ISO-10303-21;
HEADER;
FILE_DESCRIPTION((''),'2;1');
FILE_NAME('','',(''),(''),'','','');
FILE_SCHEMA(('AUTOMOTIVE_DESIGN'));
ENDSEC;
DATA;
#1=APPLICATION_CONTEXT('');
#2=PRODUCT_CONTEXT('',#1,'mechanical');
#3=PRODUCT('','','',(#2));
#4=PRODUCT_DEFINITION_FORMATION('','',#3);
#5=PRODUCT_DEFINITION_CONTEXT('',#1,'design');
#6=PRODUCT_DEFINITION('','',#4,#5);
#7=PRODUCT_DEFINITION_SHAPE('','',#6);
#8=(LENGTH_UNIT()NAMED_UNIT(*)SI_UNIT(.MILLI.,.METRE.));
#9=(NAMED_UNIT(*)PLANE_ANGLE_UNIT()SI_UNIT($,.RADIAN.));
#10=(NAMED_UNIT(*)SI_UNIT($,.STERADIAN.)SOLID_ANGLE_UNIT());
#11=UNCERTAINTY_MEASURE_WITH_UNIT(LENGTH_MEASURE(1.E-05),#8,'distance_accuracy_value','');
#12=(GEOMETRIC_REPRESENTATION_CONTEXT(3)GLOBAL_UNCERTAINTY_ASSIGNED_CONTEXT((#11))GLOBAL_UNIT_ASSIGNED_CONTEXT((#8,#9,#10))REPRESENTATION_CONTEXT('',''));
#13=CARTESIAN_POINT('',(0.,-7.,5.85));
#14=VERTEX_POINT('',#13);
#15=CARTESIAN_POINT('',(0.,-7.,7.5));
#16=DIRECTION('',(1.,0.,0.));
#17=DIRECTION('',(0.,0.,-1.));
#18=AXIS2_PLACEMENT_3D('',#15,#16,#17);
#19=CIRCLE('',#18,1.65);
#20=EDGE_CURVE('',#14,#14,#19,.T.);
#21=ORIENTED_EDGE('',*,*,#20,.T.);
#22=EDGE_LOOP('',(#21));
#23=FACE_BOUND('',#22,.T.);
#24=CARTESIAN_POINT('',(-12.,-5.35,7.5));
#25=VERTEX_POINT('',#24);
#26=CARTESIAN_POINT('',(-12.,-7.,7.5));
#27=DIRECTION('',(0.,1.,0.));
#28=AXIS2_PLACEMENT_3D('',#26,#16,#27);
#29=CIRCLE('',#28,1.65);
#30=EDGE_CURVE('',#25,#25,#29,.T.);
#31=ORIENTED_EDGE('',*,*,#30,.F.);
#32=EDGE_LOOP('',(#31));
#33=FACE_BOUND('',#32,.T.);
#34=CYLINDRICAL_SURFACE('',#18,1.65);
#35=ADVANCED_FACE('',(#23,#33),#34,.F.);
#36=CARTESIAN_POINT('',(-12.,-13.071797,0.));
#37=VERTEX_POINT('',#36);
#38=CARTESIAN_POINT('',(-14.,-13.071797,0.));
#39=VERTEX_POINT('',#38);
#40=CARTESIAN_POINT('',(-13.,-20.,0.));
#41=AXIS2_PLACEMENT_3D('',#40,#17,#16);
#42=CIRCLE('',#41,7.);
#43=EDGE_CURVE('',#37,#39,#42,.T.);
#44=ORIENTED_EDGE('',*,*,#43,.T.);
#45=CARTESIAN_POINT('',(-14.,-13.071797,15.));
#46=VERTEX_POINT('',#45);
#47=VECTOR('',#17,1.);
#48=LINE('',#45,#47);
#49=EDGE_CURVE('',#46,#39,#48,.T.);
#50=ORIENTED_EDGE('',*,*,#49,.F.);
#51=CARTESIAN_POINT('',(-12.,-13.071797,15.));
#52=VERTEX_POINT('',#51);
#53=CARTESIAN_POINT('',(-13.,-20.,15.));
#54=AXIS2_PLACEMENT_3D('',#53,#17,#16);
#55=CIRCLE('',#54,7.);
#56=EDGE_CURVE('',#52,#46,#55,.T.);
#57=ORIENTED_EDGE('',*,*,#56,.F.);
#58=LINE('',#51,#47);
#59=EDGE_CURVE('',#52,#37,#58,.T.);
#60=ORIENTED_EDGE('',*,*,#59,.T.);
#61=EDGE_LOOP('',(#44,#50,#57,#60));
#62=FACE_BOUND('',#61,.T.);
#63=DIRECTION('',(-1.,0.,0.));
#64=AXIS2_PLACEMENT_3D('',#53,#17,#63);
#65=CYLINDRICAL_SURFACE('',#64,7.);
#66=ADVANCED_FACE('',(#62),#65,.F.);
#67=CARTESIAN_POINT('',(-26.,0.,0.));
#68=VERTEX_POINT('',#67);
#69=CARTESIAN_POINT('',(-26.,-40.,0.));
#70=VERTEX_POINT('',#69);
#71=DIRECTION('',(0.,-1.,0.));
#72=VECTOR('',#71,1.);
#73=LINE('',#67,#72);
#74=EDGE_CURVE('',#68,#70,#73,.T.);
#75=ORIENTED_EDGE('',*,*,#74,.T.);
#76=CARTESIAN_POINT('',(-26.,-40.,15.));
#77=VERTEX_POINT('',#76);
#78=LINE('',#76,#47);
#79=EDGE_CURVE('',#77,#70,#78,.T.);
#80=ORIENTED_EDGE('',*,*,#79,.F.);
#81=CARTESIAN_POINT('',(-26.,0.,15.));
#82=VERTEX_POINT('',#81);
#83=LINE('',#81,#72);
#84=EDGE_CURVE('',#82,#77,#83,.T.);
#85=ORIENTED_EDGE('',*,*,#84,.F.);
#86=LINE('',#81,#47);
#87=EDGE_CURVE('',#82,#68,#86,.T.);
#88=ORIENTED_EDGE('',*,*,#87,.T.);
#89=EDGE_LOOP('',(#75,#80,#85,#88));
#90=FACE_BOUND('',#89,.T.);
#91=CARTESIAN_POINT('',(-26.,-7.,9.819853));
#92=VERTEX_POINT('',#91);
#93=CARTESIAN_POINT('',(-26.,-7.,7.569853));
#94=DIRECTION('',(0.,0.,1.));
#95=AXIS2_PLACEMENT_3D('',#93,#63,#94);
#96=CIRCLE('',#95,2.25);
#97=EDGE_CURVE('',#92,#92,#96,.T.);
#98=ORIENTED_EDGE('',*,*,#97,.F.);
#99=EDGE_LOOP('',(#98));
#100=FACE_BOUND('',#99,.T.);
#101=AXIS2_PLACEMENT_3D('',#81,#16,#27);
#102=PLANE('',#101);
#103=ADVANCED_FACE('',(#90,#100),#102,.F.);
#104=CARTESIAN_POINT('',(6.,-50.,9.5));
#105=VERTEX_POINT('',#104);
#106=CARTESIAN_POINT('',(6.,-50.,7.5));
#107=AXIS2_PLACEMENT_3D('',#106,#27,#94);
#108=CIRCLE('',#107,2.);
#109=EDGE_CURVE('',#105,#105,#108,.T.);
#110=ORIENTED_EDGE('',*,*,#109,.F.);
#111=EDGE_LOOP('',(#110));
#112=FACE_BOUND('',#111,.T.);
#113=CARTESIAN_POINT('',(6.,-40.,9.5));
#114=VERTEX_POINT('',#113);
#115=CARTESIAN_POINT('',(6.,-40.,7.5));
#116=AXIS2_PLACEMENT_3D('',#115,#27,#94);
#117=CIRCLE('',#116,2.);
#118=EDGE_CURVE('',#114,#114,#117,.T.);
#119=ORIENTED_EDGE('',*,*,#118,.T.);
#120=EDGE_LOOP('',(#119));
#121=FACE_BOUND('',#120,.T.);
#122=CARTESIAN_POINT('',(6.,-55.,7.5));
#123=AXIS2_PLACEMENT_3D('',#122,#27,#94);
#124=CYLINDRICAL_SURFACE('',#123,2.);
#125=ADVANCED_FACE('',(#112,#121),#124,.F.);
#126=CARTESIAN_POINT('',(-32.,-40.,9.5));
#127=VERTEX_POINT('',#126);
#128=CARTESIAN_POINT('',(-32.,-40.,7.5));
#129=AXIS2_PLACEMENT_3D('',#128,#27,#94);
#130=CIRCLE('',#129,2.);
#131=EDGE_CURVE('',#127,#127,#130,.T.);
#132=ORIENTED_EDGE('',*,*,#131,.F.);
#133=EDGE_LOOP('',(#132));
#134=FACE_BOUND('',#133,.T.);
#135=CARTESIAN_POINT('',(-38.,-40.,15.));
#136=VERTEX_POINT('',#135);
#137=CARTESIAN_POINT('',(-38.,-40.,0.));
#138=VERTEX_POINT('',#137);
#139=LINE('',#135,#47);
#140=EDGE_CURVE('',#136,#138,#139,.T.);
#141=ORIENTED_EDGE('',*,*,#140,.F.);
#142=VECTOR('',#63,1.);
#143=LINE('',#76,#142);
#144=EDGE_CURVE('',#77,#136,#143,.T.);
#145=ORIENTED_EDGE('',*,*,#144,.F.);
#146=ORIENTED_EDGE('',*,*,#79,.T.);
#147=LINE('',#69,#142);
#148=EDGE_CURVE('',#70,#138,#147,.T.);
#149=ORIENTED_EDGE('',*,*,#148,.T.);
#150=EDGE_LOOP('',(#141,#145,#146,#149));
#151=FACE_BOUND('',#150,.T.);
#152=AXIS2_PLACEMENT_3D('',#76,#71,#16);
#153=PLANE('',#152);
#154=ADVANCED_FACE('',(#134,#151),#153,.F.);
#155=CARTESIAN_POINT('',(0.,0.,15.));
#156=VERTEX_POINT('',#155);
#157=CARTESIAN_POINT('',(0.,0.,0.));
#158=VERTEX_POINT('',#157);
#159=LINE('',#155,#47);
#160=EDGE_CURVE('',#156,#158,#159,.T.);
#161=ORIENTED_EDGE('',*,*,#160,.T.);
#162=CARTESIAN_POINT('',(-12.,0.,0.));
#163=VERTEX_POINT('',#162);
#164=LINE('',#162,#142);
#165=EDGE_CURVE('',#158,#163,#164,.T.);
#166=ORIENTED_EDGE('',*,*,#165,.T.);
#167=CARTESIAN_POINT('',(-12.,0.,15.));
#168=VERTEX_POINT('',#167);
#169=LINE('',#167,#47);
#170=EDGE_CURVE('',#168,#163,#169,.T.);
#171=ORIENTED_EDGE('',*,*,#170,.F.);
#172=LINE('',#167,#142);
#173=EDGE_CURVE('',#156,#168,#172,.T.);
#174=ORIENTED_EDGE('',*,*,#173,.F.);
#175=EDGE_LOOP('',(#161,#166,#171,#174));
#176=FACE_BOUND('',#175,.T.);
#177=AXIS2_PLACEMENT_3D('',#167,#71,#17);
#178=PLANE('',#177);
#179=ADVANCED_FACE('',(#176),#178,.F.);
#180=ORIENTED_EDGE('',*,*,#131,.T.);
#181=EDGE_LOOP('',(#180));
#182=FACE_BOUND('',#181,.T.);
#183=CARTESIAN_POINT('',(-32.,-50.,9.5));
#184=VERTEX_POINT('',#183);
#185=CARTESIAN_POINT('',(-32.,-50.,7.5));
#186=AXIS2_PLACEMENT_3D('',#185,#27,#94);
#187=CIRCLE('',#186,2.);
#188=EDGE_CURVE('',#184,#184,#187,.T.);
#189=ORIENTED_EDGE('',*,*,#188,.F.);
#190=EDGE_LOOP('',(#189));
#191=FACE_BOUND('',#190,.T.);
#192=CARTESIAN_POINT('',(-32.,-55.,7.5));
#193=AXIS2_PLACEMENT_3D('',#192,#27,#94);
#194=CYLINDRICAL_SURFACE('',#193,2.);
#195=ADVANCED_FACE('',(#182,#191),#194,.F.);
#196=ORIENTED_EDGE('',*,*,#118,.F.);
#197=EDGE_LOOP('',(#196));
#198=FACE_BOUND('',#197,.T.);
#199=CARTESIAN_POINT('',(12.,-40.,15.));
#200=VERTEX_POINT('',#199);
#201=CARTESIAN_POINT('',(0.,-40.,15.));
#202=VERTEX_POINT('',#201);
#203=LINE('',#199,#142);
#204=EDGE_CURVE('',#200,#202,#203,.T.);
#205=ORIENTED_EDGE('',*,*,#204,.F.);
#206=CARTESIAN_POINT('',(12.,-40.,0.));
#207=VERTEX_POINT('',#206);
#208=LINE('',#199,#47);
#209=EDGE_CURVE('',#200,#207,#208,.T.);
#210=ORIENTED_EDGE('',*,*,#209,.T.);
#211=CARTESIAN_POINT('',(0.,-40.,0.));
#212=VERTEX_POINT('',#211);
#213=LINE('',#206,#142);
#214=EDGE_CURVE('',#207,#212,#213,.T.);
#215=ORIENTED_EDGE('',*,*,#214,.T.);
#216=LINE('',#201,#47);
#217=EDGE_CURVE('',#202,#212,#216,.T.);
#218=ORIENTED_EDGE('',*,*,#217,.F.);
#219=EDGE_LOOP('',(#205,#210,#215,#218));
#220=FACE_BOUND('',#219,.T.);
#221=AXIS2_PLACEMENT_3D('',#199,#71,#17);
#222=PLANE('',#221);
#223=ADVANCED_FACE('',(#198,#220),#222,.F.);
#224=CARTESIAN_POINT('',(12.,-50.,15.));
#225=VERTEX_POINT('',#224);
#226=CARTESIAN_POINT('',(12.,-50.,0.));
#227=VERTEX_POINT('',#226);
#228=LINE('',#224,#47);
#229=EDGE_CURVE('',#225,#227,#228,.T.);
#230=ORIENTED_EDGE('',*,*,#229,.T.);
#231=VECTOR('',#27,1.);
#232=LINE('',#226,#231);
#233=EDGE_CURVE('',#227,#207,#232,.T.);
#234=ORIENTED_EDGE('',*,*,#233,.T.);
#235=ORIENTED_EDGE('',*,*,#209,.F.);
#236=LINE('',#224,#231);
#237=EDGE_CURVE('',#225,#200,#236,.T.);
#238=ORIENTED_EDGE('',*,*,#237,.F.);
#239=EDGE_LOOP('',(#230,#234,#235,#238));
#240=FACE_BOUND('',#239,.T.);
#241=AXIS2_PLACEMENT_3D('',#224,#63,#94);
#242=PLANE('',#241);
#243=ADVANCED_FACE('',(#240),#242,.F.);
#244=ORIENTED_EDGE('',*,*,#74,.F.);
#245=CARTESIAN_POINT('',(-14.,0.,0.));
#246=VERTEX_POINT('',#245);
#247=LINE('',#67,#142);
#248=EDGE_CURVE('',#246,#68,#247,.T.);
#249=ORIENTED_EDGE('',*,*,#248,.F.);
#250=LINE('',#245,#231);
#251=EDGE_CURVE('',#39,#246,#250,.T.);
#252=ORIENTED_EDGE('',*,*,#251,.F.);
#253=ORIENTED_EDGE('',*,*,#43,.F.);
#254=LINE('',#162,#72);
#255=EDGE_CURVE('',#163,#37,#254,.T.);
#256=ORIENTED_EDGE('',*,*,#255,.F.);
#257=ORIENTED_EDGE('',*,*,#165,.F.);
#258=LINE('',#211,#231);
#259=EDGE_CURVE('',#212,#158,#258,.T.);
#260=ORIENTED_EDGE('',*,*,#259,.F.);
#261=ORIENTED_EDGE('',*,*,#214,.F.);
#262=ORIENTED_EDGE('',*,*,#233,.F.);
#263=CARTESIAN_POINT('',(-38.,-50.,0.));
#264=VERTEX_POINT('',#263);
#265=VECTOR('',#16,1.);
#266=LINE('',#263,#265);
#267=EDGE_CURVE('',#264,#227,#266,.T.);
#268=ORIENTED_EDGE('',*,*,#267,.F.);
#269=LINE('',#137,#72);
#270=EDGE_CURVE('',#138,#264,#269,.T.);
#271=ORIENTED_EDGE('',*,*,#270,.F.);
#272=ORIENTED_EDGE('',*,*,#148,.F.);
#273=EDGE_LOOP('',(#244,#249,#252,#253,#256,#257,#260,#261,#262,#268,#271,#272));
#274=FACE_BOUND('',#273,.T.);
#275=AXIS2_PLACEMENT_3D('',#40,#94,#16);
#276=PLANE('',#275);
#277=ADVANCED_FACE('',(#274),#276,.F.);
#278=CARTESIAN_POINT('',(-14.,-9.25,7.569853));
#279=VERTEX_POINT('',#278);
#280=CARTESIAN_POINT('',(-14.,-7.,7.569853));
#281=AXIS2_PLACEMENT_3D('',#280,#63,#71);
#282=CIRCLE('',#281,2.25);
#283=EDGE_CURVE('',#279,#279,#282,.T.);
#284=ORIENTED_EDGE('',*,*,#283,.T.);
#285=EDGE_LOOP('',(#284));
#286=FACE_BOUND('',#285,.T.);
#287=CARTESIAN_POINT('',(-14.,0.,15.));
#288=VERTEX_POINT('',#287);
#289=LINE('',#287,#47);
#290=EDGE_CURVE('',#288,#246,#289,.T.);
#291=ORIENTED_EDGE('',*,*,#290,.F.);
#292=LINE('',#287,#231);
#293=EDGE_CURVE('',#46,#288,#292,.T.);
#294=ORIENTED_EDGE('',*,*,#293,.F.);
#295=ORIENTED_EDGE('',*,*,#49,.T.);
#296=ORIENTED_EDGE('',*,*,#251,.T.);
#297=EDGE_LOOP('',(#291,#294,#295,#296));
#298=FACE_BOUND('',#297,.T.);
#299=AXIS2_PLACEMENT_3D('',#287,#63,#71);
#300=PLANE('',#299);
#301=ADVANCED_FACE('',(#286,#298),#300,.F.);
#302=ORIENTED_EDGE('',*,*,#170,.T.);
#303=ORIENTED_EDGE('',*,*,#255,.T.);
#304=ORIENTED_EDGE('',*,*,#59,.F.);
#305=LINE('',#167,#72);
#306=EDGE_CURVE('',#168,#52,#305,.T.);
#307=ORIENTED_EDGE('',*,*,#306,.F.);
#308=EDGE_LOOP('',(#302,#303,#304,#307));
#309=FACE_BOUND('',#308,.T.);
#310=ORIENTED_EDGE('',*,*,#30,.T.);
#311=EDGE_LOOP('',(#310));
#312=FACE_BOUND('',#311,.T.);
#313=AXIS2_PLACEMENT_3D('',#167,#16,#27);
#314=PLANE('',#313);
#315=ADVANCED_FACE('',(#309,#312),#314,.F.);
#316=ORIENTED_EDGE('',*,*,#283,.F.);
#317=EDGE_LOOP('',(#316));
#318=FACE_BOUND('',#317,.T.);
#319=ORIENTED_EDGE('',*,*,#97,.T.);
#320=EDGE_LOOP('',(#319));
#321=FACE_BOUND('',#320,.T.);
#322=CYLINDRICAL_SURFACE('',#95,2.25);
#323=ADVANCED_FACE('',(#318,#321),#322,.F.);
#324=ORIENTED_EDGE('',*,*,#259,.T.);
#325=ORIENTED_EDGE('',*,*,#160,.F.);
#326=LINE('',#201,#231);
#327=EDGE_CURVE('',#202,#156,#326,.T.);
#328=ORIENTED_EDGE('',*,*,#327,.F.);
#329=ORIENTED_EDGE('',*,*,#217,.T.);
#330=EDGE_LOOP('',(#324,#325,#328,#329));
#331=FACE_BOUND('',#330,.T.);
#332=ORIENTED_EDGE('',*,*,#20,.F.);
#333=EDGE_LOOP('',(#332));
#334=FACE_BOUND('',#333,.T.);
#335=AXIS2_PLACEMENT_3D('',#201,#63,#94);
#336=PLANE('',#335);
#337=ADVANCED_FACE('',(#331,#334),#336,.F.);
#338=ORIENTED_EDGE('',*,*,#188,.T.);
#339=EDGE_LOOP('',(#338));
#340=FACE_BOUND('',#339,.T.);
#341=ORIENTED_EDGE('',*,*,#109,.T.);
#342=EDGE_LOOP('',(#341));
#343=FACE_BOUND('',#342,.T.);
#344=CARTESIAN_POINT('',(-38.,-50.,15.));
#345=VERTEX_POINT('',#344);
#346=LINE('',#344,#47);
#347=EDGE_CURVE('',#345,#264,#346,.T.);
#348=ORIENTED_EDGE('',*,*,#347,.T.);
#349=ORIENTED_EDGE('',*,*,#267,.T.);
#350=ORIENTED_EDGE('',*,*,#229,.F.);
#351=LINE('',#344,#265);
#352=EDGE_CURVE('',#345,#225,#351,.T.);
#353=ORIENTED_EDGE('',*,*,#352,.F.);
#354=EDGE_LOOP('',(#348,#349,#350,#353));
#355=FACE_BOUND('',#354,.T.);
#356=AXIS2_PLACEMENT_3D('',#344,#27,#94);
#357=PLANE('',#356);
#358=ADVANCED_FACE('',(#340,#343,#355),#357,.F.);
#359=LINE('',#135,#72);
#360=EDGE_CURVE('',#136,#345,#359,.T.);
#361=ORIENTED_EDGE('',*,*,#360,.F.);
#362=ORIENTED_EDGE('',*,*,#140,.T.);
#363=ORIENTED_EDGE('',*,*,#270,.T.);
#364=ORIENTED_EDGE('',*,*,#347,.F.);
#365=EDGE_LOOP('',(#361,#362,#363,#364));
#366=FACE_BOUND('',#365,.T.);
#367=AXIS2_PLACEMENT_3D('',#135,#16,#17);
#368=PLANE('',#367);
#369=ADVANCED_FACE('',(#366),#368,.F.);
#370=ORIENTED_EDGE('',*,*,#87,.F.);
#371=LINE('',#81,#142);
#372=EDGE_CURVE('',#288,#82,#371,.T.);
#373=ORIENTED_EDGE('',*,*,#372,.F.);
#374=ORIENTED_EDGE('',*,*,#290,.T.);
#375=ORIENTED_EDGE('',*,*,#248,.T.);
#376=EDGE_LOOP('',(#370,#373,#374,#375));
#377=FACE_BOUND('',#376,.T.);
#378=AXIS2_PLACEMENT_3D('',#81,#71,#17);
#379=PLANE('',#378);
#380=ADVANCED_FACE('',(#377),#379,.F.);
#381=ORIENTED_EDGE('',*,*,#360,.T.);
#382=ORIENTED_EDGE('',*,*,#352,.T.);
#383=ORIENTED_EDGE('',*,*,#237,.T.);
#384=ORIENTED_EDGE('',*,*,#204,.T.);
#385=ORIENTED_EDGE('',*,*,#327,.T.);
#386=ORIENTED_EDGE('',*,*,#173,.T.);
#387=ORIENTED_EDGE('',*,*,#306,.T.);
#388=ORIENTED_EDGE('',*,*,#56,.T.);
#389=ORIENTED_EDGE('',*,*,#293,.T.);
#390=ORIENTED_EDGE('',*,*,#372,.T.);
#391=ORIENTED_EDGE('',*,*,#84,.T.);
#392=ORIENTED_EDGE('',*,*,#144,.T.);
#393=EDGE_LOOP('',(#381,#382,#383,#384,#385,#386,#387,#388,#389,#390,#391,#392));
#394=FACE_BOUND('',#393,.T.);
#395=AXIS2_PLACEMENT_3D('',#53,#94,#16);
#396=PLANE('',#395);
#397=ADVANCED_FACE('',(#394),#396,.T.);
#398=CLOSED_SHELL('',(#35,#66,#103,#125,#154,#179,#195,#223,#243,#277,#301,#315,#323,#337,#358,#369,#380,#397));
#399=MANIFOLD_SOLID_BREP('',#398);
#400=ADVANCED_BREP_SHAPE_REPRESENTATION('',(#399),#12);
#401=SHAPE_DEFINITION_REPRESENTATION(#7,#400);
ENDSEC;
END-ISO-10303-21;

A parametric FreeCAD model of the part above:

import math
import FreeCAD as App
import Part
import Sketcher

doc = App.newDocument("Part")
body = doc.addObject("PartDesign::Body", "Body")

# Sketch on XY plane
sketch1 = body.newObject("Sketcher::SketchObject", "Sketch")
sketch1.AttachmentSupport = (doc.getObject("XY_Plane"), [""])
sketch1.MapMode = "FlatFace"
sketch1.addGeometry([
    Part.LineSegment(App.Vector(-26, 0, 0), App.Vector(-26, -40, 0)),  # 0
    Part.LineSegment(App.Vector(-26, -40, 0), App.Vector(-38, -40, 0)),  # 1
    Part.LineSegment(App.Vector(-38, -40, 0), App.Vector(-38, -50, 0)),  # 2
    Part.LineSegment(App.Vector(-38, -50, 0), App.Vector(12, -50, 0)),  # 3
    Part.LineSegment(App.Vector(12, -50, 0), App.Vector(12, -40, 0)),  # 4
    Part.LineSegment(App.Vector(12, -40, 0), App.Vector(0, -40, 0)),  # 5
    Part.LineSegment(App.Vector(0, -40, 0), App.Vector(0, 0, 0)),  # 6
    Part.LineSegment(App.Vector(0, 0, 0), App.Vector(-12, 0, 0)),  # 7
    Part.LineSegment(App.Vector(-12, 0, 0), App.Vector(-12, -13.1, 0)),  # 8
    Part.ArcOfCircle(Part.Circle(App.Vector(-13, -20, 0), App.Vector(0, 0, 1), 7), math.radians(98), math.radians(442)),  # 9
    Part.LineSegment(App.Vector(-14, -13.1, 0), App.Vector(-14, 0, 0)),  # 10
    Part.LineSegment(App.Vector(-14, 0, 0), App.Vector(-26, 0, 0)),  # 11
], False)
sketch1.addConstraint([
    Sketcher.Constraint("Coincident", 0, 2, 1, 1),
    Sketcher.Constraint("Coincident", 1, 2, 2, 1),
    Sketcher.Constraint("Coincident", 2, 2, 3, 1),
    Sketcher.Constraint("Coincident", 3, 2, 4, 1),
    Sketcher.Constraint("Coincident", 4, 2, 5, 1),
    Sketcher.Constraint("Coincident", 5, 2, 6, 1),
    Sketcher.Constraint("Coincident", 6, 2, 7, 1),
    Sketcher.Constraint("Coincident", 7, 2, 8, 1),
    Sketcher.Constraint("Coincident", 8, 2, 9, 2),
    Sketcher.Constraint("Coincident", 9, 1, 10, 1),
    Sketcher.Constraint("Coincident", 10, 2, 11, 1),
    Sketcher.Constraint("Coincident", 11, 2, 0, 1),
    Sketcher.Constraint("Vertical", 0),
    Sketcher.Constraint("Horizontal", 1),
    Sketcher.Constraint("Vertical", 2),
    Sketcher.Constraint("Horizontal", 3),
    Sketcher.Constraint("Vertical", 4),
    Sketcher.Constraint("Horizontal", 5),
    Sketcher.Constraint("Vertical", 6),
    Sketcher.Constraint("Horizontal", 7),
    Sketcher.Constraint("Vertical", 8),
    Sketcher.Constraint("Vertical", 10),
    Sketcher.Constraint("Horizontal", 11),
    Sketcher.Constraint("Coincident", 6, 2, -1, 1),
    Sketcher.Constraint("PointOnObject", 10, 2, -1),
    Sketcher.Constraint("Horizontal", 1, 2, 4, 2),
    Sketcher.Constraint("Horizontal", 8, 2, 9, 1),
    Sketcher.Constraint("Equal", 1, 5),
    Sketcher.Constraint("Equal", 5, 7),
    Sketcher.Constraint("Equal", 7, 11),
    Sketcher.Constraint("Radius", 9, 7.0),
    Sketcher.Constraint("DistanceX", 1, 2, 1, 1, 12.0),
    Sketcher.Constraint("DistanceX", 3, 1, 3, 2, 50.0),
    Sketcher.Constraint("DistanceY", 0, 2, 0, 1, 40.0),
    Sketcher.Constraint("DistanceY", 2, 2, 2, 1, 10.0),
    Sketcher.Constraint("DistanceY", 9, 3, -1, 1, 20.0),
])
pad1 = body.newObject("PartDesign::Pad", "Pad")
pad1.Profile = sketch1
pad1.Length = 15

# Sketch on XZ plane
sketch2 = body.newObject("Sketcher::SketchObject", "Sketch001")
sketch2.AttachmentSupport = (doc.getObject("XZ_Plane"), [""])
sketch2.MapMode = "FlatFace"
sketch2.AttachmentOffset = App.Placement(App.Vector(0, 0, 40), App.Rotation())
sketch2.addGeometry([
    Part.Circle(App.Vector(6, 7.5, 0), App.Vector(0, 0, 1), 2),
    Part.Circle(App.Vector(-32, 7.5, 0), App.Vector(0, 0, 1), 2),
], False)
sketch2.addConstraint([
    Sketcher.Constraint("Equal", 0, 1),
    Sketcher.Constraint("Horizontal", 0, 3, 1, 3),
    Sketcher.Constraint("Diameter", 0, 4.0),
    Sketcher.Constraint("DistanceX", -1, 1, 0, 3, 6.0),
    Sketcher.Constraint("DistanceX", 1, 3, -1, 1, 32.0),
    Sketcher.Constraint("DistanceY", -1, 1, 0, 3, 7.5),
])
pocket1 = body.newObject("PartDesign::Pocket", "Pocket")
pocket1.Profile = sketch2
pocket1.Length = 15
pocket1.Reversed = True

# Sketch on YZ plane
sketch3 = body.newObject("Sketcher::SketchObject", "Sketch002")
sketch3.AttachmentSupport = (doc.getObject("YZ_Plane"), [""])
sketch3.MapMode = "FlatFace"
sketch3.AttachmentOffset = App.Placement(App.Vector(0, 0, -26), App.Rotation())
sketch3.addGeometry(Part.Circle(App.Vector(-7, 7.6, 0), App.Vector(0, 0, 1), 2.2), False)
sketch3.addConstraint([
    Sketcher.Constraint("Diameter", 0, 4.5),
    Sketcher.Constraint("DistanceX", 0, 3, -1, 1, 7.0),
    Sketcher.Constraint("DistanceY", -1, 1, 0, 3, 7.569853),
])
doc.recompute()
hole = body.newObject("PartDesign::Hole", "Hole")
hole.Profile = sketch3
hole.ThreadType = "None"
hole.Diameter = 4.5
hole.DepthType = "Dimension"
hole.Depth = 12
hole.DrillPoint = "Flat"
hole.Reversed = True

# Sketch on YZ plane
sketch4 = body.newObject("Sketcher::SketchObject", "Sketch003")
sketch4.AttachmentSupport = (doc.getObject("YZ_Plane"), [""])
sketch4.MapMode = "FlatFace"
sketch4.addGeometry(Part.Circle(App.Vector(-7, 7.5, 0), App.Vector(0, 0, 1), 1.6), False)
sketch4.addConstraint([
    Sketcher.Constraint("Diameter", 0, 3.3),
    Sketcher.Constraint("DistanceX", 0, 3, -1, 1, 7.0),
    Sketcher.Constraint("DistanceY", -1, 1, 0, 3, 7.5),
])
doc.recompute()
hole2 = body.newObject("PartDesign::Hole", "Hole001")
hole2.Profile = sketch4
hole2.ThreadType = "None"
hole2.Diameter = 3.3
hole2.DepthType = "Dimension"
hole2.Depth = 12
hole2.DrillPoint = "Flat"

doc.recompute()
